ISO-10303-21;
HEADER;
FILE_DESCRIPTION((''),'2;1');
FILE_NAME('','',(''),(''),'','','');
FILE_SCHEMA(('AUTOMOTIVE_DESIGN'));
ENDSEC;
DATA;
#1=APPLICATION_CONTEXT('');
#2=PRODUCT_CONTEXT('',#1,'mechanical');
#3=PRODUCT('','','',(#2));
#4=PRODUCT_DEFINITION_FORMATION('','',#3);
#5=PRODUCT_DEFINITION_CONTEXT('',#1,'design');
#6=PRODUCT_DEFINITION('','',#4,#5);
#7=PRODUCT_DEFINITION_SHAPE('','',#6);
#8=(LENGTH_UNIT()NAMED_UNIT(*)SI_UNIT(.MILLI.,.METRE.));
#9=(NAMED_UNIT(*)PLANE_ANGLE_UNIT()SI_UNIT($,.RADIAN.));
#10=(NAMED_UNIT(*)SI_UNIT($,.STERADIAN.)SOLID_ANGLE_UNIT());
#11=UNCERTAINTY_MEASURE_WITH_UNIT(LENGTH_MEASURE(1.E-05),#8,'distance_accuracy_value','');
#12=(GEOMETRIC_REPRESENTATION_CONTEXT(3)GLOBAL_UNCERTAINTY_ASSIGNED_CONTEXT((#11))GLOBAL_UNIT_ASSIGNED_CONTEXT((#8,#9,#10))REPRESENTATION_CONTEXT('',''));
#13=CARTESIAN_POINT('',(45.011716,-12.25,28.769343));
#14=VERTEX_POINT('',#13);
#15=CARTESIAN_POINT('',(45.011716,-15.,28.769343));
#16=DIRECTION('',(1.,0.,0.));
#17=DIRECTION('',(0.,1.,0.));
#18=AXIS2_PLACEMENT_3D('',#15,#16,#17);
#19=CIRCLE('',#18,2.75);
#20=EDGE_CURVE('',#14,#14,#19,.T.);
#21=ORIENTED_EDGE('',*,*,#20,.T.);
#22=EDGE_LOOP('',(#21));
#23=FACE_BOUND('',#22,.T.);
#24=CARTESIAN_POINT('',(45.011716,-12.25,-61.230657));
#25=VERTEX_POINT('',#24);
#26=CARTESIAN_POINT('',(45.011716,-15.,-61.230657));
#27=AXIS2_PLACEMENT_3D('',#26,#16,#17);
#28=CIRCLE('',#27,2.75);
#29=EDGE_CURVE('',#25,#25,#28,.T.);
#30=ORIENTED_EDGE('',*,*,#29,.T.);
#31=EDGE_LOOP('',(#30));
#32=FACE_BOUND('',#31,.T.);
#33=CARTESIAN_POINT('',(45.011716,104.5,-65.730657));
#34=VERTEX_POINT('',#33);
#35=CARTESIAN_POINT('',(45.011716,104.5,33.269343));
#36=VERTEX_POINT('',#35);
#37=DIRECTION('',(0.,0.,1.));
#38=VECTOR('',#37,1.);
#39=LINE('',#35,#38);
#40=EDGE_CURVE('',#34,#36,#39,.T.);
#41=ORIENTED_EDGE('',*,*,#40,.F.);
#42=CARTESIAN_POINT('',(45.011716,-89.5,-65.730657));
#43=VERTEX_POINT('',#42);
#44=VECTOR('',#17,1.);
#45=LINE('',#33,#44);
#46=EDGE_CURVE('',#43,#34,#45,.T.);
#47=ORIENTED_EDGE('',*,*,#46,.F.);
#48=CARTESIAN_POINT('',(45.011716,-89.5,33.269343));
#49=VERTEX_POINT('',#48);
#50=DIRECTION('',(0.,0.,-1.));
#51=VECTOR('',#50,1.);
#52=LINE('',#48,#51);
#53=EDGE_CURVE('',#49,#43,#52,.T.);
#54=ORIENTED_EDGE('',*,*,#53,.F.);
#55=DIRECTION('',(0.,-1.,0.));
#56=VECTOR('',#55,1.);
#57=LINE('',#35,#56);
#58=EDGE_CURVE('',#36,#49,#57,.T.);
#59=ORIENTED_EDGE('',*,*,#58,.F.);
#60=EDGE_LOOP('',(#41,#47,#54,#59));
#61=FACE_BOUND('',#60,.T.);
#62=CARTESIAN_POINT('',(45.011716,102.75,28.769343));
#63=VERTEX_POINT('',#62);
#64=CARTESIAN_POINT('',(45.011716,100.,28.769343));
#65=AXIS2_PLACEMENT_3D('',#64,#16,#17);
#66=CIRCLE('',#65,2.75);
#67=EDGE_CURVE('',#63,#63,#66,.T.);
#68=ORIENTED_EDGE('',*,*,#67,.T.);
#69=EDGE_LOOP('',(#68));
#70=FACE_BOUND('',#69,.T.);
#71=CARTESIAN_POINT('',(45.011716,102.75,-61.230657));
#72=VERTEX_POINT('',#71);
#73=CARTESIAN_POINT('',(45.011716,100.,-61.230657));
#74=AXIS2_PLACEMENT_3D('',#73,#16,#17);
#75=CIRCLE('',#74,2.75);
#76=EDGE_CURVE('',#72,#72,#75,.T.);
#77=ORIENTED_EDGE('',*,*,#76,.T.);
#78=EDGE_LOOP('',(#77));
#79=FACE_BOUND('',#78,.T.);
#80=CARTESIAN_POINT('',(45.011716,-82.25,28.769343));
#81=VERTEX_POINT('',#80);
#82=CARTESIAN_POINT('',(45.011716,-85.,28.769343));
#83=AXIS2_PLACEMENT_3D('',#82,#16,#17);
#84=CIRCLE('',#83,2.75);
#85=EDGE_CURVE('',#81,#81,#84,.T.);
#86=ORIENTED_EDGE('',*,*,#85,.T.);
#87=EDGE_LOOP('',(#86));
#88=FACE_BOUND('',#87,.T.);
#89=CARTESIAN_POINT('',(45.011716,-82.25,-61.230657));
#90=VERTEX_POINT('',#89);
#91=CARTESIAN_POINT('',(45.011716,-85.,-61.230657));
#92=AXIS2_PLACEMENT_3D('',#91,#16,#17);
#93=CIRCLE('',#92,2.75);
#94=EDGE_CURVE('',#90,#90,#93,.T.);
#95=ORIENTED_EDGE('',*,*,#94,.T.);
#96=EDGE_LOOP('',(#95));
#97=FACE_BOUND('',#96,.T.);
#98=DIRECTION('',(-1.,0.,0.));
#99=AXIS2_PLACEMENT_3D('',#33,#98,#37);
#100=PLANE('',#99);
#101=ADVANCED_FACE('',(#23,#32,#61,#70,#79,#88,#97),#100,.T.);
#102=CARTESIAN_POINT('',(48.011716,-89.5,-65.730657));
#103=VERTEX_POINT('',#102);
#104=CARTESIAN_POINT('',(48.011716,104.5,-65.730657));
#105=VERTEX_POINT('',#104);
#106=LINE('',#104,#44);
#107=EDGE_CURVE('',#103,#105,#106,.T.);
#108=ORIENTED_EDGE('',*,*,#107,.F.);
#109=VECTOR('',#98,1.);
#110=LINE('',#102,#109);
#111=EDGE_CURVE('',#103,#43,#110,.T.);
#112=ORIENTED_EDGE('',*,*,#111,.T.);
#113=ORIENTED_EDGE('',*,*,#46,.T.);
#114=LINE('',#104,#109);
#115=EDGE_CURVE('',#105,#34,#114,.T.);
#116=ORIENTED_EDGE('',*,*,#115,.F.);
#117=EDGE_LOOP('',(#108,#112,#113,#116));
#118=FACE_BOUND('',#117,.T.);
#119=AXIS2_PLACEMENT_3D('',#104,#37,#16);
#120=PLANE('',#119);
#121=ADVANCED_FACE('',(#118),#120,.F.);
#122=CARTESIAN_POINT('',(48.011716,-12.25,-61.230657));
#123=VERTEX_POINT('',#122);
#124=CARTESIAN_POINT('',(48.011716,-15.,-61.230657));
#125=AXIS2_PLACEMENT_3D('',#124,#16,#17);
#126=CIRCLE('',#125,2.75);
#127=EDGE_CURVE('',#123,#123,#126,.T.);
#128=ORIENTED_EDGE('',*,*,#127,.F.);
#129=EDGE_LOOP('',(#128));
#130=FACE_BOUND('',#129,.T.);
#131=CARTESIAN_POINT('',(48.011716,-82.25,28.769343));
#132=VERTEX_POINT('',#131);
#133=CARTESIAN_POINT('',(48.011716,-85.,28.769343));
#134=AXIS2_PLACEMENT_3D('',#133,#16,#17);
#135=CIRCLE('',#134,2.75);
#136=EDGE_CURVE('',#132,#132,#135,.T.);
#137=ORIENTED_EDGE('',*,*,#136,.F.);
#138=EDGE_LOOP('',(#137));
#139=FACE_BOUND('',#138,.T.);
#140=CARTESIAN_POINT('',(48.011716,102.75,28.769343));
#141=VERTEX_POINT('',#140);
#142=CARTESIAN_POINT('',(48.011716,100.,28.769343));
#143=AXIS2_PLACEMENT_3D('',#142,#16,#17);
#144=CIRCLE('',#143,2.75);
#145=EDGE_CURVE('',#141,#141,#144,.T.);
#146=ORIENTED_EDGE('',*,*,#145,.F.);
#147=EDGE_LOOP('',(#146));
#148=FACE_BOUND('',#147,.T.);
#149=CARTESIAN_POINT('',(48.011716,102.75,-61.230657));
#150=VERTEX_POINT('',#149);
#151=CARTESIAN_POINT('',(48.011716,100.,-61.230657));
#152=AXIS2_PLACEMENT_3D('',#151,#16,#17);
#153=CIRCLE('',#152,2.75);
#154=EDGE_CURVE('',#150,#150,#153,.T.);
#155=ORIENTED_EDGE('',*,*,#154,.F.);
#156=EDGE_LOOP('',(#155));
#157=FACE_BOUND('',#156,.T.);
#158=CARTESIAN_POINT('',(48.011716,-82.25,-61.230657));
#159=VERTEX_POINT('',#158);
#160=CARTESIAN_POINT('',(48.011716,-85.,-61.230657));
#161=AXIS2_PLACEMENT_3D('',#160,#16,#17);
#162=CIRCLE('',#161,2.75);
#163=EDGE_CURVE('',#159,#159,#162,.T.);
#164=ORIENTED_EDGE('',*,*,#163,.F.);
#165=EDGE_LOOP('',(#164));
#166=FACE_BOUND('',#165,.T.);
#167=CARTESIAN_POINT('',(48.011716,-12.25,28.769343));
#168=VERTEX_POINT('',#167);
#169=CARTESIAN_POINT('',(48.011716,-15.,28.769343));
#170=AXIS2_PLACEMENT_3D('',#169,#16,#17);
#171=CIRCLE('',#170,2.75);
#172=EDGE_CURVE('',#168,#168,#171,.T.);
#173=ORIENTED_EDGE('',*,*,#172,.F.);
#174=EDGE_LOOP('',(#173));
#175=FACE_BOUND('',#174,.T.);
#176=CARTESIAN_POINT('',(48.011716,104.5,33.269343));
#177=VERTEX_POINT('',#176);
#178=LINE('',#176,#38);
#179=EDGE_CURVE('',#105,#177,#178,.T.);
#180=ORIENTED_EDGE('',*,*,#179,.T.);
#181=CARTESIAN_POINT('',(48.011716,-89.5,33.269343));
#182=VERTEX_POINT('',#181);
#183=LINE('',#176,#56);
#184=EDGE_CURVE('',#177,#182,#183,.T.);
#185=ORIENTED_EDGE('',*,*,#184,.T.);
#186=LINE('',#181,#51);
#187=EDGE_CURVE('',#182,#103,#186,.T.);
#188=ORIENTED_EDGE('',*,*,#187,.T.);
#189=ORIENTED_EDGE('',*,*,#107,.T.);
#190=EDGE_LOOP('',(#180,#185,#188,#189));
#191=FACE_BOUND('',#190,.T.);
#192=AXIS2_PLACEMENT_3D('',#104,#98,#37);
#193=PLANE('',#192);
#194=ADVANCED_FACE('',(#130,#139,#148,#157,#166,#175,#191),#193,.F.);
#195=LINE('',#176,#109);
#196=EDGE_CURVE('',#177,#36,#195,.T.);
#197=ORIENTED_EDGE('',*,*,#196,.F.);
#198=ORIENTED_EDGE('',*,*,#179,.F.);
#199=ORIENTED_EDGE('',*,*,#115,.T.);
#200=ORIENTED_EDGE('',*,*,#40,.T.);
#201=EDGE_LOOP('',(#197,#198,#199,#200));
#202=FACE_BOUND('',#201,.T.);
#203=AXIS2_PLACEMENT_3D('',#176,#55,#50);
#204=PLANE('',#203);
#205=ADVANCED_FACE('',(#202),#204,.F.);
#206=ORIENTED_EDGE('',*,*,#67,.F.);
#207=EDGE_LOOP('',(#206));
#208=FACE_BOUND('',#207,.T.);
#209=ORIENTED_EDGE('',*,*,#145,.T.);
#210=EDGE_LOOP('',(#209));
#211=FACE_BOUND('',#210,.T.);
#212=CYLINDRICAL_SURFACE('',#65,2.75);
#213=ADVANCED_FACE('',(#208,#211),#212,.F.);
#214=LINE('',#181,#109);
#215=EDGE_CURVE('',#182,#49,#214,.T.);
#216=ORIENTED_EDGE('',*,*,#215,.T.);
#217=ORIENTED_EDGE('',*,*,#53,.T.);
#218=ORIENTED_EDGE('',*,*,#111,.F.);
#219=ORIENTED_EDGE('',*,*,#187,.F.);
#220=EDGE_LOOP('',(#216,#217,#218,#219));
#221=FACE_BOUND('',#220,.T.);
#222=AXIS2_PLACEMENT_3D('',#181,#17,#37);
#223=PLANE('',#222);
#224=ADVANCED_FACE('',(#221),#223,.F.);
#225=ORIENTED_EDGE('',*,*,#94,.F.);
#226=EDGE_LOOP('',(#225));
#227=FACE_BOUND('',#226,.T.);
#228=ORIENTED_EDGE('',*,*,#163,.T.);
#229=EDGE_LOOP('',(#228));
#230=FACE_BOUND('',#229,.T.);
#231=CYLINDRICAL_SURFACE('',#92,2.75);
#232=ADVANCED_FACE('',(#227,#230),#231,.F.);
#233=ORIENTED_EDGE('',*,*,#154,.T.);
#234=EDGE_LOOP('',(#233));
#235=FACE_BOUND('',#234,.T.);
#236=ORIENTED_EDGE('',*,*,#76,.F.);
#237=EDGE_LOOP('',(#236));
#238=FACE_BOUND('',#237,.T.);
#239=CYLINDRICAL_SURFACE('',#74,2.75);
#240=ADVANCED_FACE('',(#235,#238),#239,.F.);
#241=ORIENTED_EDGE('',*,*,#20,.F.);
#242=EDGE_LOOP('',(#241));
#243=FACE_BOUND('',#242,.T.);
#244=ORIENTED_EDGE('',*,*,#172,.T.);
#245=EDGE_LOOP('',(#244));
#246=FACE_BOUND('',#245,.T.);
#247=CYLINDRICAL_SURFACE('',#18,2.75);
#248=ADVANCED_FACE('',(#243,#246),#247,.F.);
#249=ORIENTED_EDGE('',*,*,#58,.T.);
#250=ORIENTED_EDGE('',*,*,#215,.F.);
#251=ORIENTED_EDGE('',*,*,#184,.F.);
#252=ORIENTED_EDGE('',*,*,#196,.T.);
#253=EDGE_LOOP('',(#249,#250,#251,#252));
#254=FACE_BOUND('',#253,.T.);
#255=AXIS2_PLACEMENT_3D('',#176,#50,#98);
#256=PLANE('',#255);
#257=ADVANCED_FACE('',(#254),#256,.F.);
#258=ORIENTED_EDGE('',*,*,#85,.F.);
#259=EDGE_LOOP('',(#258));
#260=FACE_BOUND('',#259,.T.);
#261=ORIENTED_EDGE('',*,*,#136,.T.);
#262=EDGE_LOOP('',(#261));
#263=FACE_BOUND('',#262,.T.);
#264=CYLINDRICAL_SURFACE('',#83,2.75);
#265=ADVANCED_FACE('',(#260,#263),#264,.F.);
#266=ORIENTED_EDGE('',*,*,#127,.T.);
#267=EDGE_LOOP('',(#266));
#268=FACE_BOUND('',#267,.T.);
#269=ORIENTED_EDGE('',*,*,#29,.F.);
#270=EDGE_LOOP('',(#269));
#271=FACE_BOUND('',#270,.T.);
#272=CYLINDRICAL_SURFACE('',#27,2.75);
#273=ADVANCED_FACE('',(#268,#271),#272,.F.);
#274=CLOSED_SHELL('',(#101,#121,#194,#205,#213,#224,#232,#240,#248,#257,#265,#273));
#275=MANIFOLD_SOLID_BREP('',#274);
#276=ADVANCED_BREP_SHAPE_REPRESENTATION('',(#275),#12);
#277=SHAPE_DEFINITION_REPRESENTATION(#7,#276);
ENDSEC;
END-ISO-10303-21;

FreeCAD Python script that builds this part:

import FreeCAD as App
import Part
import Sketcher
from FreeCAD import Vector
Q = App.Units.Quantity

doc = App.newDocument("Part")
params = doc.addObject("Spreadsheet::Sheet", "Params")
for row, (alias, value) in enumerate([
    ("sketch1_width", "194 mm"),
    ("sketch1_height", "99 mm"),
    ("pad1_length", "3 mm"),
    ("sketch2_diameter", "5.5 mm"),
], start=1):
    params.set(f"A{row}", alias)
    params.set(f"B{row}", "=" + value)
    params.setAlias(f"B{row}", alias)

body = doc.addObject("PartDesign::Body", "Body")

sketch1 = doc.addObject("Sketcher::SketchObject", "Sketch")
body.addObject(sketch1)
sketch1.AttachmentSupport = (doc.YZ_Plane, [""])
sketch1.MapMode = "FlatFace"
sketch1.AttachmentOffset = App.Placement(Vector(0, 0, 45.011716), App.Rotation())
sketch1.addGeometry(Part.LineSegment(Vector(104.5, 33.269343, 0), Vector(-89.5, 33.269343, 0)), False)
sketch1.addGeometry(Part.LineSegment(Vector(-89.5, 33.269343, 0), Vector(-89.5, -65.730657, 0)), False)
sketch1.addGeometry(Part.LineSegment(Vector(-89.5, -65.730657, 0), Vector(104.5, -65.730657, 0)), False)
sketch1.addGeometry(Part.LineSegment(Vector(104.5, -65.730657, 0), Vector(104.5, 33.269343, 0)), False)
sketch1.addConstraint(Sketcher.Constraint("Coincident", 0, 2, 1, 1))
sketch1.addConstraint(Sketcher.Constraint("Coincident", 1, 2, 2, 1))
sketch1.addConstraint(Sketcher.Constraint("Coincident", 2, 2, 3, 1))
sketch1.addConstraint(Sketcher.Constraint("Coincident", 3, 2, 0, 1))
sketch1.addConstraint(Sketcher.Constraint("Horizontal", 0))
sketch1.addConstraint(Sketcher.Constraint("Vertical", 1))
sketch1.addConstraint(Sketcher.Constraint("Horizontal", 2))
sketch1.addConstraint(Sketcher.Constraint("Vertical", 3))
sketch1.addConstraint(Sketcher.Constraint("DistanceX", 0, 2, 0, 1, Q("194 mm")))
sketch1.addConstraint(Sketcher.Constraint("DistanceY", 1, 2, 1, 1, Q("99 mm")))
sketch1.addConstraint(Sketcher.Constraint("DistanceX", 0, 2, -1, 1, Q("89.5 mm")))
sketch1.addConstraint(Sketcher.Constraint("DistanceY", -1, 1, 0, 2, Q("33.269343 mm")))
sketch1.setExpression("Constraints[8]", "Params.sketch1_width")
sketch1.setExpression("Constraints[9]", "Params.sketch1_height")
pad1 = doc.addObject("PartDesign::Pad", "Pad")
body.addObject(pad1)
pad1.Profile = sketch1
pad1.setExpression("Length", "Params.pad1_length")

sketch2 = doc.addObject("Sketcher::SketchObject", "Sketch001")
body.addObject(sketch2)
sketch2.AttachmentSupport = (doc.YZ_Plane, [""])
sketch2.MapMode = "FlatFace"
sketch2.AttachmentOffset = App.Placement(Vector(0, 0, 48.011716), App.Rotation())
sketch2.addGeometry(Part.Circle(Vector(100, 28.769343, 0), Vector(0, 0, 1), 2.75), False)
sketch2.addGeometry(Part.Circle(Vector(100, -61.230657, 0), Vector(0, 0, 1), 2.75), False)
sketch2.addGeometry(Part.Circle(Vector(-85, 28.769343, 0), Vector(0, 0, 1), 2.75), False)
sketch2.addGeometry(Part.Circle(Vector(-85, -61.230657, 0), Vector(0, 0, 1), 2.75), False)
sketch2.addGeometry(Part.Circle(Vector(-15, 28.769343, 0), Vector(0, 0, 1), 2.75), False)
sketch2.addGeometry(Part.Circle(Vector(-15, -61.230657, 0), Vector(0, 0, 1), 2.75), False)
sketch2.addConstraint(Sketcher.Constraint("Equal", 0, 1))
sketch2.addConstraint(Sketcher.Constraint("Equal", 1, 2))
sketch2.addConstraint(Sketcher.Constraint("Equal", 2, 3))
sketch2.addConstraint(Sketcher.Constraint("Equal", 3, 4))
sketch2.addConstraint(Sketcher.Constraint("Equal", 4, 5))
sketch2.addConstraint(Sketcher.Constraint("Horizontal", 0, 3, 2, 3))
sketch2.addConstraint(Sketcher.Constraint("Horizontal", 1, 3, 3, 3))
sketch2.addConstraint(Sketcher.Constraint("Horizontal", 2, 3, 4, 3))
sketch2.addConstraint(Sketcher.Constraint("Horizontal", 3, 3, 5, 3))
sketch2.addConstraint(Sketcher.Constraint("Vertical", 0, 3, 1, 3))
sketch2.addConstraint(Sketcher.Constraint("Vertical", 2, 3, 3, 3))
sketch2.addConstraint(Sketcher.Constraint("Vertical", 4, 3, 5, 3))
sketch2.addConstraint(Sketcher.Constraint("Diameter", 0, Q("5.5 mm")))
sketch2.addConstraint(Sketcher.Constraint("DistanceX", -1, 1, 0, 3, Q("100 mm")))
sketch2.addConstraint(Sketcher.Constraint("DistanceX", 2, 3, -1, 1, Q("85 mm")))
sketch2.addConstraint(Sketcher.Constraint("DistanceX", 4, 3, -1, 1, Q("15 mm")))
sketch2.addConstraint(Sketcher.Constraint("DistanceY", 1, 3, 0, 3, Q("90 mm")))
sketch2.addConstraint(Sketcher.Constraint("DistanceY", -1, 1, 0, 3, Q("28.769343 mm")))
sketch2.setExpression("Constraints[12]", "Params.sketch2_diameter")
pocket1 = doc.addObject("PartDesign::Pocket", "Pocket")
body.addObject(pocket1)
pocket1.Profile = sketch2
pocket1.Type = "ThroughAll"

doc.recompute()
